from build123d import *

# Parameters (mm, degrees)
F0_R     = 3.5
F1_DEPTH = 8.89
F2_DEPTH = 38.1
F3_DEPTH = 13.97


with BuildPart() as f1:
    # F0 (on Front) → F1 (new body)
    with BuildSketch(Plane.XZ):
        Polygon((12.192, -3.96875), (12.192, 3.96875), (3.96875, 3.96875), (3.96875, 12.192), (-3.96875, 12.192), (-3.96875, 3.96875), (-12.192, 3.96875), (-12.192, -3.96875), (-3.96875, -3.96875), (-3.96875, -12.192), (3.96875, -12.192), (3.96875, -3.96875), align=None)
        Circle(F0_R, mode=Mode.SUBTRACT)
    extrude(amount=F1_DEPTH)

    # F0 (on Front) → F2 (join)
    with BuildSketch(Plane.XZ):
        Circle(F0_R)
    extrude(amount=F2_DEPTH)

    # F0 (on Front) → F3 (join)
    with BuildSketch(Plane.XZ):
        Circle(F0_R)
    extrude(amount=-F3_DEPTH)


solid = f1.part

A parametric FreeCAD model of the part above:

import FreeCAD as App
import Part
import Sketcher
Q = App.Units.Quantity


def add_polygon(sketch, points):
    """Adds a closed chain of lines whose ends are joined by coincident constraints."""
    first, n = sketch.GeometryCount, len(points)
    for a, b in zip(points, points[1:] + points[:1]):
        sketch.addGeometry(Part.LineSegment(App.Vector(*a, 0), App.Vector(*b, 0)), False)
    for i in range(n):
        sketch.addConstraint(Sketcher.Constraint("Coincident", first + i, 2, first + (i + 1) % n, 1))

doc = App.newDocument("Part")
params = doc.addObject("Spreadsheet::Sheet", "Params")
for row, (alias, value) in enumerate([
    ("sketch1_width", "0.3125 in"),
    ("pad1_length", "0.35 in"),
    ("pad2_length", "1.5 in"),
    ("pad3_length", "0.55 in"),
], start=1):
    params.set(f"A{row}", alias)
    params.set(f"B{row}", "=" + value)
    params.setAlias(f"B{row}", alias)

body = doc.addObject("PartDesign::Body", "Body")

# Sketch on XZ plane
sketch1 = doc.addObject("Sketcher::SketchObject", "Sketch")
body.addObject(sketch1)
sketch1.AttachmentSupport = (doc.XZ_Plane, [""])
sketch1.MapMode = "FlatFace"
add_polygon(sketch1, [(12.2, -4), (12.2, 4), (4, 4), (4, 12.2), (-4, 12.2), (-4, 4), (-12.2, 4), (-12.2, -4), (-4, -4), (-4, -12.2), (4, -12.2), (4, -4)])  # lines 0-11
sketch1.addGeometry(Part.Circle(App.Vector(0, 0, 0), App.Vector(0, 0, 1), 3.5), False)  # 12
sketch1.addConstraint(Sketcher.Constraint("Vertical", 0))
sketch1.addConstraint(Sketcher.Constraint("Horizontal", 1))
sketch1.addConstraint(Sketcher.Constraint("Vertical", 2))
sketch1.addConstraint(Sketcher.Constraint("Horizontal", 3))
sketch1.addConstraint(Sketcher.Constraint("Vertical", 4))
sketch1.addConstraint(Sketcher.Constraint("Horizontal", 5))
sketch1.addConstraint(Sketcher.Constraint("Vertical", 6))
sketch1.addConstraint(Sketcher.Constraint("Horizontal", 7))
sketch1.addConstraint(Sketcher.Constraint("Vertical", 8))
sketch1.addConstraint(Sketcher.Constraint("Horizontal", 9))
sketch1.addConstraint(Sketcher.Constraint("Vertical", 10))
sketch1.addConstraint(Sketcher.Constraint("Horizontal", 11))
sketch1.addConstraint(Sketcher.Constraint("Coincident", 12, 3, -1, 1))
sketch1.addConstraint(Sketcher.Constraint("Symmetric", 0, 2, 6, 2, -1, 1))
sketch1.addConstraint(Sketcher.Constraint("Symmetric", 2, 2, 8, 2, -1, 1))
sketch1.addConstraint(Sketcher.Constraint("Symmetric", 4, 2, 10, 2, -1, 1))
sketch1.addConstraint(Sketcher.Constraint("Symmetric", 1, 2, 4, 2, -2))
sketch1.addConstraint(Sketcher.Constraint("Equal", 9, 0))
sketch1.addConstraint(Sketcher.Constraint("Equal", 11, 2))
sketch1.addConstraint(Sketcher.Constraint("Diameter", 12, Q("7 mm")))
sketch1.addConstraint(Sketcher.Constraint("DistanceX", 3, 2, 3, 1, Q("0.3125 in")))
sketch1.addConstraint(Sketcher.Constraint("DistanceX", -1, 1, 0, 2, Q("0.48 in")))
sketch1.setExpression("Constraints[32]", "Params.sketch1_width")
pad1 = doc.addObject("PartDesign::Pad", "Pad")
body.addObject(pad1)
pad1.Profile = sketch1
pad1.setExpression("Length", "Params.pad1_length")

# Sketch on XZ plane
sketch2 = doc.addObject("Sketcher::SketchObject", "Sketch001")
body.addObject(sketch2)
sketch2.AttachmentSupport = (doc.XZ_Plane, [""])
sketch2.MapMode = "FlatFace"
sketch2.addGeometry(Part.Circle(App.Vector(0, 0, 0), App.Vector(0, 0, 1), 3.5), False)
sketch2.addConstraint(Sketcher.Constraint("Coincident", 0, 3, -1, 1))
sketch2.addConstraint(Sketcher.Constraint("Diameter", 0, Q("7 mm")))
pad2 = doc.addObject("PartDesign::Pad", "Pad001")
body.addObject(pad2)
pad2.Profile = sketch2
pad2.setExpression("Length", "Params.pad2_length")

# Sketch on XZ plane
sketch3 = doc.addObject("Sketcher::SketchObject", "Sketch002")
body.addObject(sketch3)
sketch3.AttachmentSupport = (doc.XZ_Plane, [""])
sketch3.MapMode = "FlatFace"
sketch3.addGeometry(Part.Circle(App.Vector(0, 0, 0), App.Vector(0, 0, 1), 3.5), False)
sketch3.addConstraint(Sketcher.Constraint("Coincident", 0, 3, -1, 1))
sketch3.addConstraint(Sketcher.Constraint("Diameter", 0, Q("7 mm")))
pad3 = doc.addObject("PartDesign::Pad", "Pad002")
body.addObject(pad3)
pad3.Profile = sketch3
pad3.setExpression("Length", "Params.pad3_length")
pad3.Reversed = True

doc.recompute()
